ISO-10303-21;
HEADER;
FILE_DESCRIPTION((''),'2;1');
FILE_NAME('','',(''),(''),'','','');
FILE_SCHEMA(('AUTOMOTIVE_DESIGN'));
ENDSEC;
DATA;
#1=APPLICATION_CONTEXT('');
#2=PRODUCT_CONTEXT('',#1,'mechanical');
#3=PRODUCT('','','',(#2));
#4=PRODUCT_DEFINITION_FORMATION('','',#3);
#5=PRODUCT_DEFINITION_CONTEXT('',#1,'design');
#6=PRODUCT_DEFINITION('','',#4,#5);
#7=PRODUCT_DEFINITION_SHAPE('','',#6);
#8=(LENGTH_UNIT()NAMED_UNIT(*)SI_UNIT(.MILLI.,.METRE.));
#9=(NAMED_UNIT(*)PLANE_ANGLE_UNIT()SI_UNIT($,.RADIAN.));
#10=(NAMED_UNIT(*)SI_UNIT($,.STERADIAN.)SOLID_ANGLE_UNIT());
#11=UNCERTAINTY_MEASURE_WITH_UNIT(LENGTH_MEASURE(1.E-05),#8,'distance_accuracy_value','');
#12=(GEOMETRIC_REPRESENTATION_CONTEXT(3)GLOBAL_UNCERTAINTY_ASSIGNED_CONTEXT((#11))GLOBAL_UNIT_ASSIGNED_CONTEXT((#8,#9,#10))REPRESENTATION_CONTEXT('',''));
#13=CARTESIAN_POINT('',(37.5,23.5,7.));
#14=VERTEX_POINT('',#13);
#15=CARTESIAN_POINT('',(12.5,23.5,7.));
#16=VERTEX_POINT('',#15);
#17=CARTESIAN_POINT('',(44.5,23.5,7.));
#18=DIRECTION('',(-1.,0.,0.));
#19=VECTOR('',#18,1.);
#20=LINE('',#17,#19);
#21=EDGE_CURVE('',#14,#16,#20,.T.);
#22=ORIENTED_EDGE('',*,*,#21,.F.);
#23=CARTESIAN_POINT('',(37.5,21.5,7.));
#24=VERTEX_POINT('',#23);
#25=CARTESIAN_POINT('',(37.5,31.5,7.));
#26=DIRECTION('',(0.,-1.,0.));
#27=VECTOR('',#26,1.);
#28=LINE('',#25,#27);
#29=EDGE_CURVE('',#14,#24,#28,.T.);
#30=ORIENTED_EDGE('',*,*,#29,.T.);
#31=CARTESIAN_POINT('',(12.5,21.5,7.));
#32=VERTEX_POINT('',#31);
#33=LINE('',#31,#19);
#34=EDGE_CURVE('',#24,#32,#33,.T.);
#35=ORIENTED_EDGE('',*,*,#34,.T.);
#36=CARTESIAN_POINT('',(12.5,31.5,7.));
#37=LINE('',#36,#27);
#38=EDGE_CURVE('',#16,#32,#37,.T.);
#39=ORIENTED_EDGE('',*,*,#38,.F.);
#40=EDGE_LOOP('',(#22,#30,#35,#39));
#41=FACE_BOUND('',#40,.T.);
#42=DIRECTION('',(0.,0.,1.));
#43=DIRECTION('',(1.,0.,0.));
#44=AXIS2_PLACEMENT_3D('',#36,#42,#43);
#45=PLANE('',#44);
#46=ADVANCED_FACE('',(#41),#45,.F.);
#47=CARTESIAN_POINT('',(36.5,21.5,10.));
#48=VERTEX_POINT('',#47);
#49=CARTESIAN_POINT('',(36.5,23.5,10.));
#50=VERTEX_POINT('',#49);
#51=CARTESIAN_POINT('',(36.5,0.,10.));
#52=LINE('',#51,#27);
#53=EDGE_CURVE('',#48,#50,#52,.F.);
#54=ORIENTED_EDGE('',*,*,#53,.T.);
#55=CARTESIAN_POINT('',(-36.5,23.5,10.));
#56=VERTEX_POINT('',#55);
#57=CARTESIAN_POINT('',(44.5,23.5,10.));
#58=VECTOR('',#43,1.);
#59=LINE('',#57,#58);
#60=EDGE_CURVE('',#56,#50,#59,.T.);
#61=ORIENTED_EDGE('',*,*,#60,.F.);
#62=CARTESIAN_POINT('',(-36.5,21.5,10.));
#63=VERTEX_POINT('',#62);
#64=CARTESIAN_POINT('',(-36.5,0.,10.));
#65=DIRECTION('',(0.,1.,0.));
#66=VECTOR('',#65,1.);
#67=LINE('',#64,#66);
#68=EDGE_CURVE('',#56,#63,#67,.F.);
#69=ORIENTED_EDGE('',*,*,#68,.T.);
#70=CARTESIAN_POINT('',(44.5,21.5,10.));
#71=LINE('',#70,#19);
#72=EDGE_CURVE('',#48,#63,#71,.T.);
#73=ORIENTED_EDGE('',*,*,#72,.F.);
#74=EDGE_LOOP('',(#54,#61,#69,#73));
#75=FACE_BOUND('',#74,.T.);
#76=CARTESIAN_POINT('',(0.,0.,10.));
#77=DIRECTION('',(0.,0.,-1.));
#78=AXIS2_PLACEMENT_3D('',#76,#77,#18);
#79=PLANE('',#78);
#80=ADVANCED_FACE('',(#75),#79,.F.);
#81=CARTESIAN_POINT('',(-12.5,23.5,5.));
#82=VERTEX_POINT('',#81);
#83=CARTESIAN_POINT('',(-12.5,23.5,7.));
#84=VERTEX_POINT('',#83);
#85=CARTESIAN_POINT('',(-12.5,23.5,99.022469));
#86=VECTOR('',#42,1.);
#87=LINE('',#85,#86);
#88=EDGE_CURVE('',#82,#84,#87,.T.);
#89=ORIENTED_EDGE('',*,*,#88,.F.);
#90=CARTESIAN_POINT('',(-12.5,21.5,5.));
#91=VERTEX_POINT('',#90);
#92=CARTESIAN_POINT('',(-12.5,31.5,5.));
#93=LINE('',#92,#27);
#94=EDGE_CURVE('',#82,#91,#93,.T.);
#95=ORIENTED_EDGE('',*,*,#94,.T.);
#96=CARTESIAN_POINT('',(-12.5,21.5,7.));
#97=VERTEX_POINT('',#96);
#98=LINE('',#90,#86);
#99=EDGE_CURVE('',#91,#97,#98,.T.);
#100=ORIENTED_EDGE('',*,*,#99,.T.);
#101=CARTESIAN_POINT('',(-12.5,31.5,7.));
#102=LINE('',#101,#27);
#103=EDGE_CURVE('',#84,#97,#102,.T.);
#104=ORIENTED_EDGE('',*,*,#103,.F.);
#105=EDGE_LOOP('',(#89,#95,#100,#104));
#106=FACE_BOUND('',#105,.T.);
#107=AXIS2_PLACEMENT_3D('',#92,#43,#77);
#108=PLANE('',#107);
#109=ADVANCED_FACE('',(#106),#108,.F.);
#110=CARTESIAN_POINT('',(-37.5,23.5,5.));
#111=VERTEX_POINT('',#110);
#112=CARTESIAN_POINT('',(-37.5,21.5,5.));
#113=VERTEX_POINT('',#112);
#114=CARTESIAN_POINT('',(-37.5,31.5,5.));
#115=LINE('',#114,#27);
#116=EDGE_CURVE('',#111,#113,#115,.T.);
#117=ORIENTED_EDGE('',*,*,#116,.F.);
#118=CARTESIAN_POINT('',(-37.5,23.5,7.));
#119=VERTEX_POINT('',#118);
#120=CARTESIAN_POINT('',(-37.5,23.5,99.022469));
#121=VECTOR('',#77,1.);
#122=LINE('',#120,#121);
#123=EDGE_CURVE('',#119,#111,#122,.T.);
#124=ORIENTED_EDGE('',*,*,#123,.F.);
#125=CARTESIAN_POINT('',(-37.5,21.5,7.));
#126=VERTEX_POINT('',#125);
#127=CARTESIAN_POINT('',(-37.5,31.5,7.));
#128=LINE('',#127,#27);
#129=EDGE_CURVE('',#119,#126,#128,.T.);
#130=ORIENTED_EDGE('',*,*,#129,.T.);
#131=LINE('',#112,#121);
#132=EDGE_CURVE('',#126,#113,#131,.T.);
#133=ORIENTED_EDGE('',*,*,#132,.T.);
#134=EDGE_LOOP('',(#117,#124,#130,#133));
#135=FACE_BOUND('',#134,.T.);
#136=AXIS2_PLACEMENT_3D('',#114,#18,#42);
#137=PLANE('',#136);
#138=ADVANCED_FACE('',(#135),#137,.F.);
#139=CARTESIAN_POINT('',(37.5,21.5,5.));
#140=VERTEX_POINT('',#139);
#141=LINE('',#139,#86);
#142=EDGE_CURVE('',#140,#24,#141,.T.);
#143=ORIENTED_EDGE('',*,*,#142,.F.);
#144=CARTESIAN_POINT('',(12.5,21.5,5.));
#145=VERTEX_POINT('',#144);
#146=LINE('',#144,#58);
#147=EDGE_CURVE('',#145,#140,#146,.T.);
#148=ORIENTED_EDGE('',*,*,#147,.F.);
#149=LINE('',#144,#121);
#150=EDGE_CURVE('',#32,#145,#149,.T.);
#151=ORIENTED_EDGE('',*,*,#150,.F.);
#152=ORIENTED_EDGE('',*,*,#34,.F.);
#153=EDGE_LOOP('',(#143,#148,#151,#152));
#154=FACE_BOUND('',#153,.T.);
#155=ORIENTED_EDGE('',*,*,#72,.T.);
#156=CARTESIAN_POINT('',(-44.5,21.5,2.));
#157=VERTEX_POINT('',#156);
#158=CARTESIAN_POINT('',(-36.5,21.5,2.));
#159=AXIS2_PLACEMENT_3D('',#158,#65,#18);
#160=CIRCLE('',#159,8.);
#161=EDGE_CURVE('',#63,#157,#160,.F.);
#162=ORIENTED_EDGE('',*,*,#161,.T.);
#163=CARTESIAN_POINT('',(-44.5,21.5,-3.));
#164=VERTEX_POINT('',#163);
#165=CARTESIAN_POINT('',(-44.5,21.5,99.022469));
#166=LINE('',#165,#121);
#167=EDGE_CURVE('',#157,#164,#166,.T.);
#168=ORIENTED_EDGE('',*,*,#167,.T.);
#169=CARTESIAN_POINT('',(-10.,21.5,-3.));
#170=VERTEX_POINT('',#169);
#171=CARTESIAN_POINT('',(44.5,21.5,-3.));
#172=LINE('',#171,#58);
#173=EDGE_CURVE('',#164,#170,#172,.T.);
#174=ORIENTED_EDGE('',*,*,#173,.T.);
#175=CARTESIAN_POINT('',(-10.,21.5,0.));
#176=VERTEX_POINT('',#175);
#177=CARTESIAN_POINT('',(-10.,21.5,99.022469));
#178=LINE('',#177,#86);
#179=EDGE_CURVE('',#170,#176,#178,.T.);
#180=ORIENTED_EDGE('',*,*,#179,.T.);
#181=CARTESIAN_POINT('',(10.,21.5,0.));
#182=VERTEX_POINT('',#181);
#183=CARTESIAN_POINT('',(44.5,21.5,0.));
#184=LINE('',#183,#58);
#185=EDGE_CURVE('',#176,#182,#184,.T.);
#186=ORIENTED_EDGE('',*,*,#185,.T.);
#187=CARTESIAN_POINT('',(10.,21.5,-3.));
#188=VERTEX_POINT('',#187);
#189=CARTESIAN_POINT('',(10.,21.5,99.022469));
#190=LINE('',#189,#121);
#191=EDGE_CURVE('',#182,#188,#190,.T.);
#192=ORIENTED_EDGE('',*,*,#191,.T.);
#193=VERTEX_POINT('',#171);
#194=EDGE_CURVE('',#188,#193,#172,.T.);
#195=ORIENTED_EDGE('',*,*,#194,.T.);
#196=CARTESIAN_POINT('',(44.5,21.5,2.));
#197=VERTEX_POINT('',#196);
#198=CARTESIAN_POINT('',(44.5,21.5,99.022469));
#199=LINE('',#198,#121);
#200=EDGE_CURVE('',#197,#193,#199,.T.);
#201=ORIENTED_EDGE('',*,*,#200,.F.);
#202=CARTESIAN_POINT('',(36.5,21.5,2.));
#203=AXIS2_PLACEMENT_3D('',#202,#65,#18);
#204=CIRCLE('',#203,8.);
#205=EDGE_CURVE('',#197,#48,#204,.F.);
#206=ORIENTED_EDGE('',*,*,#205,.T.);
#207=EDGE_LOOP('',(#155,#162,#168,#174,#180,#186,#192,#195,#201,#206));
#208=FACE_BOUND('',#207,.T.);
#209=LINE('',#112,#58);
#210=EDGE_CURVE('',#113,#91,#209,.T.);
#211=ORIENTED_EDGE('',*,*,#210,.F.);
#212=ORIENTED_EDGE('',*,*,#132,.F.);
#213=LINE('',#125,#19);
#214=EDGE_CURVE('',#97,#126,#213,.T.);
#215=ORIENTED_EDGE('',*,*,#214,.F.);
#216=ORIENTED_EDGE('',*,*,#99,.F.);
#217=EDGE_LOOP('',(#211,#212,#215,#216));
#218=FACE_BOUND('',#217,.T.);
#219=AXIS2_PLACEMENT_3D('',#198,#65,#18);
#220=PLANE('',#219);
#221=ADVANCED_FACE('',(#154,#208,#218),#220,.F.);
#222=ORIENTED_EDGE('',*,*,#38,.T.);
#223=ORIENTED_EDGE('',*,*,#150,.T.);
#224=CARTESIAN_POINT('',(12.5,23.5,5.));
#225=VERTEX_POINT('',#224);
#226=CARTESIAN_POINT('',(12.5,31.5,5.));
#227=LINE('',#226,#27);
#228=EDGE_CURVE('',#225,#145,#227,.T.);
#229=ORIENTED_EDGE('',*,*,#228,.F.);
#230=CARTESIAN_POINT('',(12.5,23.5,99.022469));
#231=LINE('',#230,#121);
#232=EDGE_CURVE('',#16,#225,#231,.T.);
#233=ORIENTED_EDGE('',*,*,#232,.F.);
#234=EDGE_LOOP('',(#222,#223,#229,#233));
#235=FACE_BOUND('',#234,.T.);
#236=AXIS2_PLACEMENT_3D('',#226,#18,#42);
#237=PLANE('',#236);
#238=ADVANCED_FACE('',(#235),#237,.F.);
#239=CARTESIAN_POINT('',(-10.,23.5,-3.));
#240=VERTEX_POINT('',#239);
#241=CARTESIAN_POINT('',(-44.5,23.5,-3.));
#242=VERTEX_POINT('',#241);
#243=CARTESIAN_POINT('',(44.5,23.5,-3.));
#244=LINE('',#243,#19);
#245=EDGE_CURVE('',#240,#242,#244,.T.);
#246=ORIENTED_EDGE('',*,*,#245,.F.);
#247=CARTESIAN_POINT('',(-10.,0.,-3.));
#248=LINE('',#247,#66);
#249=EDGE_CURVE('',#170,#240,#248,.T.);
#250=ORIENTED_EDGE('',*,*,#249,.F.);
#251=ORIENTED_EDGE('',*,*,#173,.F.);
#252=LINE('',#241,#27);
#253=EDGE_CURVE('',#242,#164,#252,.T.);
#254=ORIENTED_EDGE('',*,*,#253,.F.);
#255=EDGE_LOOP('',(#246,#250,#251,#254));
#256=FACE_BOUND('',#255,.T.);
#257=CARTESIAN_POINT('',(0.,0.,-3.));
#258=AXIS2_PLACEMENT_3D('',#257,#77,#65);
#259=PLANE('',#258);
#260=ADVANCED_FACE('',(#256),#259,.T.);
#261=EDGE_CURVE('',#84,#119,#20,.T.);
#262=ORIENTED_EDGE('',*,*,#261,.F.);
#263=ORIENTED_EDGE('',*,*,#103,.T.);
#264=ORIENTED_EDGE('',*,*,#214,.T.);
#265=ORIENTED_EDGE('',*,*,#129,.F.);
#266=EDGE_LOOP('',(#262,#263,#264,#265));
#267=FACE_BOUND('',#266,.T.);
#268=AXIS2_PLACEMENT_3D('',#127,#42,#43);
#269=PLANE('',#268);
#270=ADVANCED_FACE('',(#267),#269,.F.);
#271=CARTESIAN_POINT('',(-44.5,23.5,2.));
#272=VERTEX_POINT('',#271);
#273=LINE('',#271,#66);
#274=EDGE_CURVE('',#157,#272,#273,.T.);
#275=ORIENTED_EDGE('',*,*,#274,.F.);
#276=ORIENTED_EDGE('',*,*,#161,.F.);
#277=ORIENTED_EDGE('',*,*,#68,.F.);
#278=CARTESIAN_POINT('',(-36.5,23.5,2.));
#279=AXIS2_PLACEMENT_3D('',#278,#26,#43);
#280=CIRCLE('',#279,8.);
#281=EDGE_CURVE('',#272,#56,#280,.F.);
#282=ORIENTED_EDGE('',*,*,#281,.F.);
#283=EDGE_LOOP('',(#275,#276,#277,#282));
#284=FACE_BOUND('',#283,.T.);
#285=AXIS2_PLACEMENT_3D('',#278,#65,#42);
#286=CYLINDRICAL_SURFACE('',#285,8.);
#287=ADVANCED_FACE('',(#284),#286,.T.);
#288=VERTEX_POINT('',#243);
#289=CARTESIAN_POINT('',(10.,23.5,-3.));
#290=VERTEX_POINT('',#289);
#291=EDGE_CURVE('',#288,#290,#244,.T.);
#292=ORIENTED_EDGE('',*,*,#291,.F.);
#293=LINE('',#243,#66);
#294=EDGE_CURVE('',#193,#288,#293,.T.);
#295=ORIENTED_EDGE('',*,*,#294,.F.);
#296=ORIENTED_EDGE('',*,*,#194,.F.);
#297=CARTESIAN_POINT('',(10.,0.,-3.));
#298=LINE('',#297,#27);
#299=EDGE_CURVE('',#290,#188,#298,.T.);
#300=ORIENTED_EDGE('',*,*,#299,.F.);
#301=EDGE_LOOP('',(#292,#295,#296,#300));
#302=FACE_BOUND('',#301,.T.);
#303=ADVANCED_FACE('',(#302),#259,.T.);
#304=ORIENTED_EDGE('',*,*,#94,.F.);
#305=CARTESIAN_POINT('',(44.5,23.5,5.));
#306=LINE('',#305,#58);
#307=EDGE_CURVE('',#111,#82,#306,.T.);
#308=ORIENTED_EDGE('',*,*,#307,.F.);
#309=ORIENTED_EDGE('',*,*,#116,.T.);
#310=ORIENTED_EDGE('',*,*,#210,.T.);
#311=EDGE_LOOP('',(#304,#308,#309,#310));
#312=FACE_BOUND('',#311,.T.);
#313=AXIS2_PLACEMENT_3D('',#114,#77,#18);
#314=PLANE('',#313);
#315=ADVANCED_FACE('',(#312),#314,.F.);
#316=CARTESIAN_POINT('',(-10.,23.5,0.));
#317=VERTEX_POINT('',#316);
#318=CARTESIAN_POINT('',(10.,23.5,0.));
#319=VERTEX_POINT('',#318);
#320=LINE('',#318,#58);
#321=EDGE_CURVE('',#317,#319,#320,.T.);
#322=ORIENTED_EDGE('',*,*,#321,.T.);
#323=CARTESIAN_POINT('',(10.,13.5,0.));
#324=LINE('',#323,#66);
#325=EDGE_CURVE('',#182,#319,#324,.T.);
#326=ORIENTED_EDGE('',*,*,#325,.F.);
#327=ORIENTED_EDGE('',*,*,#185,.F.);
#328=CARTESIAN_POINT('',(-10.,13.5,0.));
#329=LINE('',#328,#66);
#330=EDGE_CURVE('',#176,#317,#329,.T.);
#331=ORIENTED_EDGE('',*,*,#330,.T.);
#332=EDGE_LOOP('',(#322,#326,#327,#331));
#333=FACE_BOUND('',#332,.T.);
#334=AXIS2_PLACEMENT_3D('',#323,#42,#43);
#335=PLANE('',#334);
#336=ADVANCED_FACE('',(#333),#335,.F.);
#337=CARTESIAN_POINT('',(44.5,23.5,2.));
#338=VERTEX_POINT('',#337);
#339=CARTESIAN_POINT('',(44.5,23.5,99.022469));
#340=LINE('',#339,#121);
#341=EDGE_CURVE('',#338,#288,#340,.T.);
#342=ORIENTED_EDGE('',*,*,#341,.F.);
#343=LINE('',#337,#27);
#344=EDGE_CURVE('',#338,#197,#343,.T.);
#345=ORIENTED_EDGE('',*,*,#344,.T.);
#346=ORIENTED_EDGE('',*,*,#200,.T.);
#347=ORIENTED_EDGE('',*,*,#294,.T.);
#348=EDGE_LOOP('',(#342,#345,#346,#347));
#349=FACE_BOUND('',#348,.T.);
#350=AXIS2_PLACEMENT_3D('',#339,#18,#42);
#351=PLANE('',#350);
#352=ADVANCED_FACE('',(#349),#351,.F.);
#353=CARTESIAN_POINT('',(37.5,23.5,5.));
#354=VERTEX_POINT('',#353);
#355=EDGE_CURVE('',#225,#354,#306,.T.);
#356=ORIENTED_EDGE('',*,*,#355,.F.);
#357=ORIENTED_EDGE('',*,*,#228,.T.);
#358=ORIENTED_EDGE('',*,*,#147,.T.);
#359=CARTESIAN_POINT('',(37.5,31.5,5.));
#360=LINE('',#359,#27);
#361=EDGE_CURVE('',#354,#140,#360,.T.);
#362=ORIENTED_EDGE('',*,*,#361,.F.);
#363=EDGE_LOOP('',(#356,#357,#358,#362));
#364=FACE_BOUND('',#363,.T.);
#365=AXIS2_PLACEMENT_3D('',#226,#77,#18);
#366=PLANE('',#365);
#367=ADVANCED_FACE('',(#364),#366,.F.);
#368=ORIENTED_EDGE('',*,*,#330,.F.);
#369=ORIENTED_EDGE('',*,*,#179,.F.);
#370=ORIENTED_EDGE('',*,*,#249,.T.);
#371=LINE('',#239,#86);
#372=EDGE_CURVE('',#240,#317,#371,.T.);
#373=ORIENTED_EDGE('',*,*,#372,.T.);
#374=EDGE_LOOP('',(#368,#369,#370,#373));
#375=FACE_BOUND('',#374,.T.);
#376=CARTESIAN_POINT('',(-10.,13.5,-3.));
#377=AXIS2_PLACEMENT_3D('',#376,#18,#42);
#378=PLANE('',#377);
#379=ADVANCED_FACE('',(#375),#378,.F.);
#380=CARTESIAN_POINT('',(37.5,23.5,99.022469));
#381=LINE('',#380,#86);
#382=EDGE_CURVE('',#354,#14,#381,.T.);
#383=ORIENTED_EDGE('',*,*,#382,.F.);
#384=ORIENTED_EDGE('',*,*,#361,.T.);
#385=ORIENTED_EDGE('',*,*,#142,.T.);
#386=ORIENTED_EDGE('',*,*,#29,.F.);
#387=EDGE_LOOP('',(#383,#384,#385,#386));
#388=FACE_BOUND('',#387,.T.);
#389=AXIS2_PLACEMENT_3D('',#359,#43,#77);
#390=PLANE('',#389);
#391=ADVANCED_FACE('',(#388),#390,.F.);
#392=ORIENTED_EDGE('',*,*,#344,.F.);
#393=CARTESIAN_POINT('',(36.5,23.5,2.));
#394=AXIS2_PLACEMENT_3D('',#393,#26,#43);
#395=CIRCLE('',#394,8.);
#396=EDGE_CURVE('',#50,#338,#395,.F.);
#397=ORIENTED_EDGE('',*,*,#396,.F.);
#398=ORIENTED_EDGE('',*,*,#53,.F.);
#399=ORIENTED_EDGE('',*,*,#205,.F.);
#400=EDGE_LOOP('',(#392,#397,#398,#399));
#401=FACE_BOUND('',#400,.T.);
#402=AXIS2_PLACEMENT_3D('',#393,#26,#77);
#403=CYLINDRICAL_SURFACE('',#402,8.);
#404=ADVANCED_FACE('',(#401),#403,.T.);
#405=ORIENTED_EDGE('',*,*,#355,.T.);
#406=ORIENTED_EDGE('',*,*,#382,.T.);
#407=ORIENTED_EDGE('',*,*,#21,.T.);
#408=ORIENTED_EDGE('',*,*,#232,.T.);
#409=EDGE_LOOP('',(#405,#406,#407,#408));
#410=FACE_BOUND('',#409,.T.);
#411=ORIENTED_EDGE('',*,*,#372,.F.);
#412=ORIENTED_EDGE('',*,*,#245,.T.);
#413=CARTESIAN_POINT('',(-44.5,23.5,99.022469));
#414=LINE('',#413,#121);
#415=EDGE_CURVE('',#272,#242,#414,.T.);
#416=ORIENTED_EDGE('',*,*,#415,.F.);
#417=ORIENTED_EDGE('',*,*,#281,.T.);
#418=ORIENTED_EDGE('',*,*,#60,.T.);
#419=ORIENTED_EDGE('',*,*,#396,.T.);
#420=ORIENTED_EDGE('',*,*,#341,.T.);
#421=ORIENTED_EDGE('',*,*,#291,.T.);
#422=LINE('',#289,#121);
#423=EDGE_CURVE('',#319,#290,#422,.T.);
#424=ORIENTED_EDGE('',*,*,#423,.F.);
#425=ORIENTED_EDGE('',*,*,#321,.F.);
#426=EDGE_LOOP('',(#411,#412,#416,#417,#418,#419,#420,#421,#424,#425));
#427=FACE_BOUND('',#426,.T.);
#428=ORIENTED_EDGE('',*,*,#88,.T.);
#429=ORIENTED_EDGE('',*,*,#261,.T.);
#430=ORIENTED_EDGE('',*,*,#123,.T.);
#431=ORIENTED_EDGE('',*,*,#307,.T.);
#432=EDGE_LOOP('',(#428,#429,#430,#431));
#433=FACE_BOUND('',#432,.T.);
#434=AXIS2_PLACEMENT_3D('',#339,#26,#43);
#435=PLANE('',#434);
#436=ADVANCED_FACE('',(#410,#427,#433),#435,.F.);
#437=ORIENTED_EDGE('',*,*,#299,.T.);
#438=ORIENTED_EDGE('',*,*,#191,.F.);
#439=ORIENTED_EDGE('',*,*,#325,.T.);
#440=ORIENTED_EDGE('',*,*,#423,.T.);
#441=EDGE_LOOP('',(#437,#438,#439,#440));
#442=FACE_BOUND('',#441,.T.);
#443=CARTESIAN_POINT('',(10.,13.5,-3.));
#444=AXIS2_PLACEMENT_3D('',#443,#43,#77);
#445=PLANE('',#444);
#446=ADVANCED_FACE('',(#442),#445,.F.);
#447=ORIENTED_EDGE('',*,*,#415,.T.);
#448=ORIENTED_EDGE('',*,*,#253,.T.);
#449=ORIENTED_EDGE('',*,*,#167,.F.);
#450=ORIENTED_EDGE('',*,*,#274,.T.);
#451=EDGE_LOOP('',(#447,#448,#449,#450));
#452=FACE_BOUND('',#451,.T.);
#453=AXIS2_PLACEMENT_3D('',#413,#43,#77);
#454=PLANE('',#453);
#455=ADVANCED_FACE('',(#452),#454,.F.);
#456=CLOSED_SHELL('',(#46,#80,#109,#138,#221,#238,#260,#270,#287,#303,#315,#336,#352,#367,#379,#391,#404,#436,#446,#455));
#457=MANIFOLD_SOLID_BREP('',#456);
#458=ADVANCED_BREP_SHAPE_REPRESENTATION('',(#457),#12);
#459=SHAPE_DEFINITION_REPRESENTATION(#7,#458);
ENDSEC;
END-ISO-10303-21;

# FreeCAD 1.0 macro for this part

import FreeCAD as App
import Part
import Sketcher
from FreeCAD import Vector


def edges_at(feature, points):
    """Names of the edges that pass closest to the given points."""
    edges = feature.Shape.Edges
    near = lambda p: min(range(len(edges)), key=lambda i: edges[i].distToShape(Part.Vertex(*p))[0])
    return sorted({f"Edge{near(p) + 1}" for p in points})

doc = App.newDocument("Part")
body = doc.addObject("PartDesign::Body", "Body")

# Sketch on XY plane
sketch1 = body.newObject("Sketcher::SketchObject", "Sketch")
sketch1.AttachmentSupport = (doc.getObject("XY_Plane"), [""])
sketch1.MapMode = "FlatFace"
sketch1.addGeometry([
    Part.LineSegment(Vector(-44.5, 23.5, 0), Vector(-44.5, 21.5, 0)),
    Part.LineSegment(Vector(-44.5, 21.5, 0), Vector(44.5, 21.5, 0)),
    Part.LineSegment(Vector(44.5, 21.5, 0), Vector(44.5, 23.5, 0)),
    Part.LineSegment(Vector(44.5, 23.5, 0), Vector(-44.5, 23.5, 0)),
], False)
sketch1.addConstraint([
    Sketcher.Constraint("Coincident", 0, 2, 1, 1),
    Sketcher.Constraint("Coincident", 1, 2, 2, 1),
    Sketcher.Constraint("Coincident", 2, 2, 3, 1),
    Sketcher.Constraint("Coincident", 3, 2, 0, 1),
    Sketcher.Constraint("Vertical", 0),
    Sketcher.Constraint("Horizontal", 1),
    Sketcher.Constraint("Vertical", 2),
    Sketcher.Constraint("Horizontal", 3),
    Sketcher.Constraint("DistanceX", 1, 1, 1, 2, 89.0),
    Sketcher.Constraint("DistanceY", 0, 2, 0, 1, 2.0),
    Sketcher.Constraint("DistanceX", 0, 2, -1, 1, 44.5),
    Sketcher.Constraint("DistanceY", -1, 1, 0, 2, 21.5),
])
pad1 = body.newObject("PartDesign::Pad", "Pad")
pad1.Profile = sketch1
pad1.Type = "TwoLengths"
pad1.Length = 10
pad1.Length2 = 3

# Sketch on XZ plane
sketch2 = body.newObject("Sketcher::SketchObject", "Sketch001")
sketch2.AttachmentSupport = (doc.getObject("XZ_Plane"), [""])
sketch2.MapMode = "FlatFace"
sketch2.AttachmentOffset = App.Placement(Vector(0, 0, -21.5), App.Rotation())
sketch2.addGeometry([
    Part.LineSegment(Vector(-37.5, 7, 0), Vector(-37.5, 5, 0)),  # 0
    Part.LineSegment(Vector(-37.5, 5, 0), Vector(-12.5, 5, 0)),  # 1
    Part.LineSegment(Vector(-12.5, 5, 0), Vector(-12.5, 7, 0)),  # 2
    Part.LineSegment(Vector(-12.5, 7, 0), Vector(-37.5, 7, 0)),  # 3
    Part.LineSegment(Vector(12.5, 7, 0), Vector(12.5, 5, 0)),  # 4
    Part.LineSegment(Vector(12.5, 5, 0), Vector(37.5, 5, 0)),  # 5
    Part.LineSegment(Vector(37.5, 5, 0), Vector(37.5, 7, 0)),  # 6
    Part.LineSegment(Vector(37.5, 7, 0), Vector(12.5, 7, 0)),  # 7
], False)
sketch2.addConstraint([
    Sketcher.Constraint("Coincident", 0, 2, 1, 1),
    Sketcher.Constraint("Coincident", 1, 2, 2, 1),
    Sketcher.Constraint("Coincident", 2, 2, 3, 1),
    Sketcher.Constraint("Coincident", 3, 2, 0, 1),
    Sketcher.Constraint("Coincident", 4, 2, 5, 1),
    Sketcher.Constraint("Coincident", 5, 2, 6, 1),
    Sketcher.Constraint("Coincident", 6, 2, 7, 1),
    Sketcher.Constraint("Coincident", 7, 2, 4, 1),
    Sketcher.Constraint("Vertical", 0),
    Sketcher.Constraint("Horizontal", 1),
    Sketcher.Constraint("Vertical", 2),
    Sketcher.Constraint("Horizontal", 3),
    Sketcher.Constraint("Vertical", 4),
    Sketcher.Constraint("Horizontal", 5),
    Sketcher.Constraint("Vertical", 6),
    Sketcher.Constraint("Horizontal", 7),
    Sketcher.Constraint("Symmetric", 1, 2, 4, 2, -2),
    Sketcher.Constraint("Symmetric", 3, 2, 6, 2, -2),
    Sketcher.Constraint("DistanceX", 1, 1, 1, 2, 25.0),
    Sketcher.Constraint("DistanceY", 0, 2, 0, 1, 2.0),
    Sketcher.Constraint("DistanceY", -1, 1, 0, 2, 5.0),
    Sketcher.Constraint("DistanceX", 1, 2, 4, 2, 25.0),
])
pocket1 = body.newObject("PartDesign::Pocket", "Pocket")
pocket1.Profile = sketch2
pocket1.Length = 10

# Sketch on XZ plane
sketch3 = body.newObject("Sketcher::SketchObject", "Sketch002")
sketch3.AttachmentSupport = (doc.getObject("XZ_Plane"), [""])
sketch3.MapMode = "FlatFace"
sketch3.AttachmentOffset = App.Placement(Vector(0, 0, -23.5), App.Rotation())
sketch3.addGeometry([
    Part.LineSegment(Vector(-10, -3, 0), Vector(-10, 0, 0)),
    Part.LineSegment(Vector(-10, 0, 0), Vector(10, 0, 0)),
    Part.LineSegment(Vector(10, 0, 0), Vector(10, -3, 0)),
    Part.LineSegment(Vector(10, -3, 0), Vector(-10, -3, 0)),
], False)
sketch3.addConstraint([
    Sketcher.Constraint("Coincident", 0, 2, 1, 1),
    Sketcher.Constraint("Coincident", 1, 2, 2, 1),
    Sketcher.Constraint("Coincident", 2, 2, 3, 1),
    Sketcher.Constraint("Coincident", 3, 2, 0, 1),
    Sketcher.Constraint("Vertical", 0),
    Sketcher.Constraint("Horizontal", 1),
    Sketcher.Constraint("Vertical", 2),
    Sketcher.Constraint("Horizontal", 3),
    Sketcher.Constraint("Symmetric", 0, 2, 1, 2, -1, 1),
    Sketcher.Constraint("DistanceX", 1, 1, 1, 2, 20.0),
    Sketcher.Constraint("DistanceY", 0, 1, 0, 2, 3.0),
])
pocket2 = body.newObject("PartDesign::Pocket", "Pocket001")
pocket2.Profile = sketch3
pocket2.Length = 10
pocket2.Reversed = True
doc.recompute()

fillet = body.newObject("PartDesign::Fillet", "Fillet")
fillet.Base = (pocket2, edges_at(pocket2, [(-44.5, 22.5, 10), (44.5, 22.5, 10)]))
fillet.Radius = 8

doc.recompute()
